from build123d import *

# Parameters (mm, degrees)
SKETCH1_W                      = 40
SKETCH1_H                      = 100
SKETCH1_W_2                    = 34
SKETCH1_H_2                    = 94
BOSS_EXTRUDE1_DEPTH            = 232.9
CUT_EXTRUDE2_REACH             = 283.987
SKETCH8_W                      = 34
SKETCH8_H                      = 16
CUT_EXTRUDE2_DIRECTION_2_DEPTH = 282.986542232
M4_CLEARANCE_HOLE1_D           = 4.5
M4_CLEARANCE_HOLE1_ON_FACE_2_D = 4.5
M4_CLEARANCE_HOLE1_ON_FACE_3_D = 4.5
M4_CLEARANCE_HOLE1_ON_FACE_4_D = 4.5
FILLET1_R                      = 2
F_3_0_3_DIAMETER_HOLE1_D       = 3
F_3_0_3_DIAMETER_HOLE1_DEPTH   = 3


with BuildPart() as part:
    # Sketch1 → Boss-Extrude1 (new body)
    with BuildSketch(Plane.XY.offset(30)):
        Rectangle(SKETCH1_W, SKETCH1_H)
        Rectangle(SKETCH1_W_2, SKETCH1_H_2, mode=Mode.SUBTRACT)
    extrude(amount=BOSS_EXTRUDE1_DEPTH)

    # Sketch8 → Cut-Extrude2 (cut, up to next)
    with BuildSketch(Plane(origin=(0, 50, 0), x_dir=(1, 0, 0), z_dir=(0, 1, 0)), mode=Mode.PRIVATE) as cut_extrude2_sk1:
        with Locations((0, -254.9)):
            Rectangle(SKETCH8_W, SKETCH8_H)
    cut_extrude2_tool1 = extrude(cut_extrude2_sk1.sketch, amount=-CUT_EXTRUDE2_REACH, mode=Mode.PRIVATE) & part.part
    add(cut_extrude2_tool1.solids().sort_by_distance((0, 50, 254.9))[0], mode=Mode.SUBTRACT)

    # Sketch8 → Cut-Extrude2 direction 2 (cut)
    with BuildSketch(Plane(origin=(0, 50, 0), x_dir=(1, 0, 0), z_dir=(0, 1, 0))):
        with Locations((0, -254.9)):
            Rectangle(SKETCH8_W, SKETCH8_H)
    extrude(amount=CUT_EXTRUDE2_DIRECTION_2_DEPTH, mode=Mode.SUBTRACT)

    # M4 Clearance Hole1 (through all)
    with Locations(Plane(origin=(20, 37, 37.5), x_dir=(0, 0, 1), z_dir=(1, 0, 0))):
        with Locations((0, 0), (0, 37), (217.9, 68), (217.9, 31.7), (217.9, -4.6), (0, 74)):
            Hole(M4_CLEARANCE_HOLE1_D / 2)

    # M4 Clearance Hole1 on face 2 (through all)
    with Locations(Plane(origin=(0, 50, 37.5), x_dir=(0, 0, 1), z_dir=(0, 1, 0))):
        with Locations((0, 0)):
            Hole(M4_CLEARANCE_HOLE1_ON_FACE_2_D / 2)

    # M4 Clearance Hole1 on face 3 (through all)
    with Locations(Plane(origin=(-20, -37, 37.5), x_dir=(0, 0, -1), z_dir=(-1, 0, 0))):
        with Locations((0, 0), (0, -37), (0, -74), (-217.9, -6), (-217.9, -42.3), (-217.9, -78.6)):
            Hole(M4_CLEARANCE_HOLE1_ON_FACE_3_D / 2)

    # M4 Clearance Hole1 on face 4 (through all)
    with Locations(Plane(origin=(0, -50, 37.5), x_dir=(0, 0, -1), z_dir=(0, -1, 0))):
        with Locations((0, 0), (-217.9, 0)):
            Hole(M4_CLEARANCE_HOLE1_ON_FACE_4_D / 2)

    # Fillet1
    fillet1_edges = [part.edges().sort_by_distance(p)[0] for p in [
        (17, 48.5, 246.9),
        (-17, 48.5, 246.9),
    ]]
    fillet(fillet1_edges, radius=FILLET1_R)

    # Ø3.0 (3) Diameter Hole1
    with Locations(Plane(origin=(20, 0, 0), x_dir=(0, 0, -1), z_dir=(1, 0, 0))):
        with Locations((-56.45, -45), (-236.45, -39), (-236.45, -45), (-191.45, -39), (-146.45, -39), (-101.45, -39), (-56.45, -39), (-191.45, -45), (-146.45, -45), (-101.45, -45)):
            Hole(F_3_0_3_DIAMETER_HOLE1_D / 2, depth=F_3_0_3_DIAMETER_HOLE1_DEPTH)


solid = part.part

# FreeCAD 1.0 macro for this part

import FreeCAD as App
import Part
import Sketcher
from FreeCAD import Vector


def edges_at(feature, points):
    """Names of the edges that pass closest to the given points."""
    edges = feature.Shape.Edges
    near = lambda p: min(range(len(edges)), key=lambda i: edges[i].distToShape(Part.Vertex(*p))[0])
    return sorted({f"Edge{near(p) + 1}" for p in points})


def add_polygon(sketch, points):
    """Adds a closed chain of lines whose ends are joined by coincident constraints."""
    first, n = sketch.GeometryCount, len(points)
    for a, b in zip(points, points[1:] + points[:1]):
        sketch.addGeometry(Part.LineSegment(App.Vector(*a, 0), App.Vector(*b, 0)), False)
    for i in range(n):
        sketch.addConstraint(Sketcher.Constraint("Coincident", first + i, 2, first + (i + 1) % n, 1))

doc = App.newDocument("Part")
body = doc.addObject("PartDesign::Body", "Body")

# Sketch on XY plane
sketch1 = body.newObject("Sketcher::SketchObject", "Sketch")
sketch1.AttachmentSupport = (doc.getObject("XY_Plane"), [""])
sketch1.MapMode = "FlatFace"
sketch1.AttachmentOffset = App.Placement(Vector(0, 0, 30), App.Rotation())
add_polygon(sketch1, [(-20, 50), (-20, -50), (20, -50), (20, 50)])  # lines 0-3
add_polygon(sketch1, [(17, -47), (-17, -47), (-17, 47), (17, 47)])  # lines 4-7
sketch1.addConstraint(Sketcher.Constraint("Vertical", 0))
sketch1.addConstraint(Sketcher.Constraint("Horizontal", 1))
sketch1.addConstraint(Sketcher.Constraint("Vertical", 2))
sketch1.addConstraint(Sketcher.Constraint("Horizontal", 3))
sketch1.addConstraint(Sketcher.Constraint("Horizontal", 4))
sketch1.addConstraint(Sketcher.Constraint("Vertical", 5))
sketch1.addConstraint(Sketcher.Constraint("Horizontal", 6))
sketch1.addConstraint(Sketcher.Constraint("Vertical", 7))
sketch1.addConstraint(Sketcher.Constraint("Symmetric", 0, 2, 2, 2, -1, 1))
sketch1.addConstraint(Sketcher.Constraint("Symmetric", 4, 2, 6, 2, -1, 1))
sketch1.addConstraint(Sketcher.Constraint("DistanceX", 1, 1, 1, 2, 40.0))
sketch1.addConstraint(Sketcher.Constraint("DistanceX", 4, 2, 4, 1, 34.0))
sketch1.addConstraint(Sketcher.Constraint("DistanceY", 0, 2, 0, 1, 100.0))
sketch1.addConstraint(Sketcher.Constraint("DistanceY", 5, 1, 5, 2, 94.0))
pad1 = body.newObject("PartDesign::Pad", "Pad")
pad1.Profile = sketch1
pad1.Length = 232.9

# Sketch on XZ plane
sketch2 = body.newObject("Sketcher::SketchObject", "Sketch001")
sketch2.AttachmentSupport = (doc.getObject("XZ_Plane"), [""])
sketch2.MapMode = "FlatFace"
sketch2.AttachmentOffset = App.Placement(Vector(0, 0, -50), App.Rotation())
add_polygon(sketch2, [(-17, 246.9), (-17, 262.9), (17, 262.9), (17, 246.9)])  # lines 0-3
sketch2.addConstraint(Sketcher.Constraint("Vertical", 0))
sketch2.addConstraint(Sketcher.Constraint("Horizontal", 1))
sketch2.addConstraint(Sketcher.Constraint("Vertical", 2))
sketch2.addConstraint(Sketcher.Constraint("Horizontal", 3))
sketch2.addConstraint(Sketcher.Constraint("DistanceX", 1, 1, 1, 2, 34.0))
sketch2.addConstraint(Sketcher.Constraint("DistanceY", 0, 1, 0, 2, 16.0))
sketch2.addConstraint(Sketcher.Constraint("DistanceX", 0, 2, -1, 1, 17.0))
sketch2.addConstraint(Sketcher.Constraint("DistanceY", -1, 1, 0, 2, 262.9))
pocket1 = body.newObject("PartDesign::Pocket", "Pocket")
pocket1.Profile = sketch2
pocket1.Type = "UpToFirst"
pocket1.Reversed = True

# Sketch on XZ plane
sketch3 = body.newObject("Sketcher::SketchObject", "Sketch002")
sketch3.AttachmentSupport = (doc.getObject("XZ_Plane"), [""])
sketch3.MapMode = "FlatFace"
sketch3.AttachmentOffset = App.Placement(Vector(0, 0, -50), App.Rotation())
add_polygon(sketch3, [(-17, 246.9), (-17, 262.9), (17, 262.9), (17, 246.9)])  # lines 0-3
sketch3.addConstraint(Sketcher.Constraint("Vertical", 0))
sketch3.addConstraint(Sketcher.Constraint("Horizontal", 1))
sketch3.addConstraint(Sketcher.Constraint("Vertical", 2))
sketch3.addConstraint(Sketcher.Constraint("Horizontal", 3))
sketch3.addConstraint(Sketcher.Constraint("DistanceX", 1, 1, 1, 2, 34.0))
sketch3.addConstraint(Sketcher.Constraint("DistanceY", 0, 1, 0, 2, 16.0))
sketch3.addConstraint(Sketcher.Constraint("DistanceX", 0, 2, -1, 1, 17.0))
sketch3.addConstraint(Sketcher.Constraint("DistanceY", -1, 1, 0, 2, 262.9))
pocket2 = body.newObject("PartDesign::Pocket", "Pocket001")
pocket2.Profile = sketch3
pocket2.Length = 282.986542

# Sketch on YZ plane
sketch4 = body.newObject("Sketcher::SketchObject", "Sketch003")
sketch4.AttachmentSupport = (doc.getObject("YZ_Plane"), [""])
sketch4.MapMode = "FlatFace"
sketch4.AttachmentOffset = App.Placement(Vector(0, 0, 20), App.Rotation())
sketch4.addGeometry(Part.Circle(Vector(37, 37.5, 0), Vector(0, 0, 1), 2.25), False)
sketch4.addGeometry(Part.Circle(Vector(0, 37.5, 0), Vector(0, 0, 1), 2.25), False)
sketch4.addGeometry(Part.Circle(Vector(-31, 255.4, 0), Vector(0, 0, 1), 2.25), False)
sketch4.addGeometry(Part.Circle(Vector(5.3, 255.4, 0), Vector(0, 0, 1), 2.25), False)
sketch4.addGeometry(Part.Circle(Vector(41.6, 255.4, 0), Vector(0, 0, 1), 2.25), False)
sketch4.addGeometry(Part.Circle(Vector(-37, 37.5, 0), Vector(0, 0, 1), 2.25), False)
sketch4.addConstraint(Sketcher.Constraint("Equal", 0, 1))
sketch4.addConstraint(Sketcher.Constraint("Equal", 1, 2))
sketch4.addConstraint(Sketcher.Constraint("Equal", 2, 3))
sketch4.addConstraint(Sketcher.Constraint("Equal", 3, 4))
sketch4.addConstraint(Sketcher.Constraint("Equal", 4, 5))
sketch4.addConstraint(Sketcher.Constraint("Symmetric", 0, 3, 5, 3, -2))
sketch4.addConstraint(Sketcher.Constraint("PointOnObject", 1, 3, -2))
sketch4.addConstraint(Sketcher.Constraint("Horizontal", 0, 3, 1, 3))
sketch4.addConstraint(Sketcher.Constraint("Horizontal", 2, 3, 3, 3))
sketch4.addConstraint(Sketcher.Constraint("Horizontal", 3, 3, 4, 3))
sketch4.addConstraint(Sketcher.Constraint("Diameter", 0, 4.5))
sketch4.addConstraint(Sketcher.Constraint("DistanceX", -1, 1, 0, 3, 37.0))
sketch4.addConstraint(Sketcher.Constraint("DistanceX", 2, 3, -1, 1, 31.0))
sketch4.addConstraint(Sketcher.Constraint("DistanceY", -1, 1, 0, 3, 37.5))
sketch4.addConstraint(Sketcher.Constraint("DistanceY", -1, 1, 2, 3, 255.4))
sketch4.addConstraint(Sketcher.Constraint("DistanceX", -1, 1, 3, 3, 5.3))
sketch4.addConstraint(Sketcher.Constraint("DistanceX", -1, 1, 4, 3, 41.6))
doc.recompute()
hole = body.newObject("PartDesign::Hole", "Hole")
hole.Profile = sketch4
hole.ThreadType = "None"
hole.Diameter = 4.5
hole.DepthType = "ThroughAll"

# Sketch on XZ plane
sketch5 = body.newObject("Sketcher::SketchObject", "Sketch004")
sketch5.AttachmentSupport = (doc.getObject("XZ_Plane"), [""])
sketch5.MapMode = "FlatFace"
sketch5.AttachmentOffset = App.Placement(Vector(0, 0, -50), App.Rotation())
sketch5.addGeometry(Part.Circle(Vector(0, 37.5, 0), Vector(0, 0, 1), 2.25), False)
sketch5.addConstraint(Sketcher.Constraint("PointOnObject", 0, 3, -2))
sketch5.addConstraint(Sketcher.Constraint("Diameter", 0, 4.5))
sketch5.addConstraint(Sketcher.Constraint("DistanceY", -1, 1, 0, 3, 37.5))
doc.recompute()
hole2 = body.newObject("PartDesign::Hole", "Hole001")
hole2.Profile = sketch5
hole2.ThreadType = "None"
hole2.Diameter = 4.5
hole2.DepthType = "ThroughAll"
hole2.Reversed = True

# Sketch on YZ plane
sketch6 = body.newObject("Sketcher::SketchObject", "Sketch005")
sketch6.AttachmentSupport = (doc.getObject("YZ_Plane"), [""])
sketch6.MapMode = "FlatFace"
sketch6.AttachmentOffset = App.Placement(Vector(0, 0, -20), App.Rotation())
sketch6.addGeometry(Part.Circle(Vector(-37, 37.5, 0), Vector(0, 0, 1), 2.25), False)
sketch6.addGeometry(Part.Circle(Vector(0, 37.5, 0), Vector(0, 0, 1), 2.25), False)
sketch6.addGeometry(Part.Circle(Vector(37, 37.5, 0), Vector(0, 0, 1), 2.25), False)
sketch6.addGeometry(Part.Circle(Vector(-31, 255.4, 0), Vector(0, 0, 1), 2.25), False)
sketch6.addGeometry(Part.Circle(Vector(5.3, 255.4, 0), Vector(0, 0, 1), 2.25), False)
sketch6.addGeometry(Part.Circle(Vector(41.6, 255.4, 0), Vector(0, 0, 1), 2.25), False)
sketch6.addConstraint(Sketcher.Constraint("Equal", 0, 1))
sketch6.addConstraint(Sketcher.Constraint("Equal", 1, 2))
sketch6.addConstraint(Sketcher.Constraint("Equal", 2, 3))
sketch6.addConstraint(Sketcher.Constraint("Equal", 3, 4))
sketch6.addConstraint(Sketcher.Constraint("Equal", 4, 5))
sketch6.addConstraint(Sketcher.Constraint("Symmetric", 0, 3, 2, 3, -2))
sketch6.addConstraint(Sketcher.Constraint("PointOnObject", 1, 3, -2))
sketch6.addConstraint(Sketcher.Constraint("Horizontal", 0, 3, 1, 3))
sketch6.addConstraint(Sketcher.Constraint("Horizontal", 3, 3, 4, 3))
sketch6.addConstraint(Sketcher.Constraint("Horizontal", 4, 3, 5, 3))
sketch6.addConstraint(Sketcher.Constraint("Diameter", 0, 4.5))
sketch6.addConstraint(Sketcher.Constraint("DistanceX", 0, 3, -1, 1, 37.0))
sketch6.addConstraint(Sketcher.Constraint("DistanceX", 3, 3, -1, 1, 31.0))
sketch6.addConstraint(Sketcher.Constraint("DistanceY", -1, 1, 0, 3, 37.5))
sketch6.addConstraint(Sketcher.Constraint("DistanceY", -1, 1, 3, 3, 255.4))
sketch6.addConstraint(Sketcher.Constraint("DistanceX", -1, 1, 4, 3, 5.3))
sketch6.addConstraint(Sketcher.Constraint("DistanceX", -1, 1, 5, 3, 41.6))
doc.recompute()
hole3 = body.newObject("PartDesign::Hole", "Hole002")
hole3.Profile = sketch6
hole3.ThreadType = "None"
hole3.Diameter = 4.5
hole3.DepthType = "ThroughAll"
hole3.Reversed = True

# Sketch on XZ plane
sketch7 = body.newObject("Sketcher::SketchObject", "Sketch006")
sketch7.AttachmentSupport = (doc.getObject("XZ_Plane"), [""])
sketch7.MapMode = "FlatFace"
sketch7.AttachmentOffset = App.Placement(Vector(0, 0, 50), App.Rotation())
sketch7.addGeometry(Part.Circle(Vector(0, 37.5, 0), Vector(0, 0, 1), 2.25), False)
sketch7.addGeometry(Part.Circle(Vector(0, 255.4, 0), Vector(0, 0, 1), 2.25), False)
sketch7.addConstraint(Sketcher.Constraint("Equal", 0, 1))
sketch7.addConstraint(Sketcher.Constraint("PointOnObject", 0, 3, -2))
sketch7.addConstraint(Sketcher.Constraint("PointOnObject", 1, 3, -2))
sketch7.addConstraint(Sketcher.Constraint("Diameter", 0, 4.5))
sketch7.addConstraint(Sketcher.Constraint("DistanceY", -1, 1, 0, 3, 37.5))
sketch7.addConstraint(Sketcher.Constraint("DistanceY", -1, 1, 1, 3, 255.4))
doc.recompute()
hole4 = body.newObject("PartDesign::Hole", "Hole003")
hole4.Profile = sketch7
hole4.ThreadType = "None"
hole4.Diameter = 4.5
hole4.DepthType = "ThroughAll"
doc.recompute()

fillet = body.newObject("PartDesign::Fillet", "Fillet")
fillet.Base = (hole4, edges_at(hole4, [(17, 48.5, 246.9), (-17, 48.5, 246.9)]))
fillet.Radius = 2

# Sketch on YZ plane
sketch8 = body.newObject("Sketcher::SketchObject", "Sketch007")
sketch8.AttachmentSupport = (doc.getObject("YZ_Plane"), [""])
sketch8.MapMode = "FlatFace"
sketch8.AttachmentOffset = App.Placement(Vector(0, 0, 20), App.Rotation())
sketch8.addGeometry(Part.Circle(Vector(-45, 56.45, 0), Vector(0, 0, 1), 1.5), False)
sketch8.addGeometry(Part.Circle(Vector(-39, 236.45, 0), Vector(0, 0, 1), 1.5), False)
sketch8.addGeometry(Part.Circle(Vector(-45, 236.45, 0), Vector(0, 0, 1), 1.5), False)
sketch8.addGeometry(Part.Circle(Vector(-39, 191.45, 0), Vector(0, 0, 1), 1.5), False)
sketch8.addGeometry(Part.Circle(Vector(-39, 146.45, 0), Vector(0, 0, 1), 1.5), False)
sketch8.addGeometry(Part.Circle(Vector(-39, 101.45, 0), Vector(0, 0, 1), 1.5), False)
sketch8.addGeometry(Part.Circle(Vector(-39, 56.45, 0), Vector(0, 0, 1), 1.5), False)
sketch8.addGeometry(Part.Circle(Vector(-45, 191.45, 0), Vector(0, 0, 1), 1.5), False)
sketch8.addGeometry(Part.Circle(Vector(-45, 146.45, 0), Vector(0, 0, 1), 1.5), False)
sketch8.addGeometry(Part.Circle(Vector(-45, 101.45, 0), Vector(0, 0, 1), 1.5), False)
sketch8.addConstraint(Sketcher.Constraint("Equal", 0, 1))
sketch8.addConstraint(Sketcher.Constraint("Equal", 1, 2))
sketch8.addConstraint(Sketcher.Constraint("Equal", 2, 3))
sketch8.addConstraint(Sketcher.Constraint("Equal", 3, 4))
sketch8.addConstraint(Sketcher.Constraint("Equal", 4, 5))
sketch8.addConstraint(Sketcher.Constraint("Equal", 5, 6))
sketch8.addConstraint(Sketcher.Constraint("Equal", 6, 7))
sketch8.addConstraint(Sketcher.Constraint("Equal", 7, 8))
sketch8.addConstraint(Sketcher.Constraint("Equal", 8, 9))
sketch8.addConstraint(Sketcher.Constraint("Horizontal", 1, 3, 2, 3))
sketch8.addConstraint(Sketcher.Constraint("Horizontal", 0, 3, 6, 3))
sketch8.addConstraint(Sketcher.Constraint("Horizontal", 3, 3, 7, 3))
sketch8.addConstraint(Sketcher.Constraint("Horizontal", 4, 3, 8, 3))
sketch8.addConstraint(Sketcher.Constraint("Horizontal", 5, 3, 9, 3))
sketch8.addConstraint(Sketcher.Constraint("Vertical", 0, 3, 2, 3))
sketch8.addConstraint(Sketcher.Constraint("Vertical", 1, 3, 3, 3))
sketch8.addConstraint(Sketcher.Constraint("Vertical", 3, 3, 4, 3))
sketch8.addConstraint(Sketcher.Constraint("Vertical", 4, 3, 5, 3))
sketch8.addConstraint(Sketcher.Constraint("Vertical", 5, 3, 6, 3))
sketch8.addConstraint(Sketcher.Constraint("Vertical", 2, 3, 7, 3))
sketch8.addConstraint(Sketcher.Constraint("Vertical", 7, 3, 8, 3))
sketch8.addConstraint(Sketcher.Constraint("Vertical", 8, 3, 9, 3))
sketch8.addConstraint(Sketcher.Constraint("Diameter", 0, 3.0))
sketch8.addConstraint(Sketcher.Constraint("DistanceX", 0, 3, -1, 1, 45.0))
sketch8.addConstraint(Sketcher.Constraint("DistanceX", 1, 3, -1, 1, 39.0))
sketch8.addConstraint(Sketcher.Constraint("DistanceY", 0, 3, 1, 3, 180.0))
sketch8.addConstraint(Sketcher.Constraint("DistanceY", 3, 3, 1, 3, 45.0))
sketch8.addConstraint(Sketcher.Constraint("DistanceY", 4, 3, 3, 3, 45.0))
sketch8.addConstraint(Sketcher.Constraint("DistanceY", 5, 3, 4, 3, 45.0))
sketch8.addConstraint(Sketcher.Constraint("DistanceY", -1, 1, 0, 3, 56.45))
doc.recompute()
hole5 = body.newObject("PartDesign::Hole", "Hole004")
hole5.Profile = sketch8
hole5.ThreadType = "None"
hole5.Diameter = 3
hole5.DepthType = "Dimension"
hole5.Depth = 3
hole5.DrillPoint = "Flat"

doc.recompute()
